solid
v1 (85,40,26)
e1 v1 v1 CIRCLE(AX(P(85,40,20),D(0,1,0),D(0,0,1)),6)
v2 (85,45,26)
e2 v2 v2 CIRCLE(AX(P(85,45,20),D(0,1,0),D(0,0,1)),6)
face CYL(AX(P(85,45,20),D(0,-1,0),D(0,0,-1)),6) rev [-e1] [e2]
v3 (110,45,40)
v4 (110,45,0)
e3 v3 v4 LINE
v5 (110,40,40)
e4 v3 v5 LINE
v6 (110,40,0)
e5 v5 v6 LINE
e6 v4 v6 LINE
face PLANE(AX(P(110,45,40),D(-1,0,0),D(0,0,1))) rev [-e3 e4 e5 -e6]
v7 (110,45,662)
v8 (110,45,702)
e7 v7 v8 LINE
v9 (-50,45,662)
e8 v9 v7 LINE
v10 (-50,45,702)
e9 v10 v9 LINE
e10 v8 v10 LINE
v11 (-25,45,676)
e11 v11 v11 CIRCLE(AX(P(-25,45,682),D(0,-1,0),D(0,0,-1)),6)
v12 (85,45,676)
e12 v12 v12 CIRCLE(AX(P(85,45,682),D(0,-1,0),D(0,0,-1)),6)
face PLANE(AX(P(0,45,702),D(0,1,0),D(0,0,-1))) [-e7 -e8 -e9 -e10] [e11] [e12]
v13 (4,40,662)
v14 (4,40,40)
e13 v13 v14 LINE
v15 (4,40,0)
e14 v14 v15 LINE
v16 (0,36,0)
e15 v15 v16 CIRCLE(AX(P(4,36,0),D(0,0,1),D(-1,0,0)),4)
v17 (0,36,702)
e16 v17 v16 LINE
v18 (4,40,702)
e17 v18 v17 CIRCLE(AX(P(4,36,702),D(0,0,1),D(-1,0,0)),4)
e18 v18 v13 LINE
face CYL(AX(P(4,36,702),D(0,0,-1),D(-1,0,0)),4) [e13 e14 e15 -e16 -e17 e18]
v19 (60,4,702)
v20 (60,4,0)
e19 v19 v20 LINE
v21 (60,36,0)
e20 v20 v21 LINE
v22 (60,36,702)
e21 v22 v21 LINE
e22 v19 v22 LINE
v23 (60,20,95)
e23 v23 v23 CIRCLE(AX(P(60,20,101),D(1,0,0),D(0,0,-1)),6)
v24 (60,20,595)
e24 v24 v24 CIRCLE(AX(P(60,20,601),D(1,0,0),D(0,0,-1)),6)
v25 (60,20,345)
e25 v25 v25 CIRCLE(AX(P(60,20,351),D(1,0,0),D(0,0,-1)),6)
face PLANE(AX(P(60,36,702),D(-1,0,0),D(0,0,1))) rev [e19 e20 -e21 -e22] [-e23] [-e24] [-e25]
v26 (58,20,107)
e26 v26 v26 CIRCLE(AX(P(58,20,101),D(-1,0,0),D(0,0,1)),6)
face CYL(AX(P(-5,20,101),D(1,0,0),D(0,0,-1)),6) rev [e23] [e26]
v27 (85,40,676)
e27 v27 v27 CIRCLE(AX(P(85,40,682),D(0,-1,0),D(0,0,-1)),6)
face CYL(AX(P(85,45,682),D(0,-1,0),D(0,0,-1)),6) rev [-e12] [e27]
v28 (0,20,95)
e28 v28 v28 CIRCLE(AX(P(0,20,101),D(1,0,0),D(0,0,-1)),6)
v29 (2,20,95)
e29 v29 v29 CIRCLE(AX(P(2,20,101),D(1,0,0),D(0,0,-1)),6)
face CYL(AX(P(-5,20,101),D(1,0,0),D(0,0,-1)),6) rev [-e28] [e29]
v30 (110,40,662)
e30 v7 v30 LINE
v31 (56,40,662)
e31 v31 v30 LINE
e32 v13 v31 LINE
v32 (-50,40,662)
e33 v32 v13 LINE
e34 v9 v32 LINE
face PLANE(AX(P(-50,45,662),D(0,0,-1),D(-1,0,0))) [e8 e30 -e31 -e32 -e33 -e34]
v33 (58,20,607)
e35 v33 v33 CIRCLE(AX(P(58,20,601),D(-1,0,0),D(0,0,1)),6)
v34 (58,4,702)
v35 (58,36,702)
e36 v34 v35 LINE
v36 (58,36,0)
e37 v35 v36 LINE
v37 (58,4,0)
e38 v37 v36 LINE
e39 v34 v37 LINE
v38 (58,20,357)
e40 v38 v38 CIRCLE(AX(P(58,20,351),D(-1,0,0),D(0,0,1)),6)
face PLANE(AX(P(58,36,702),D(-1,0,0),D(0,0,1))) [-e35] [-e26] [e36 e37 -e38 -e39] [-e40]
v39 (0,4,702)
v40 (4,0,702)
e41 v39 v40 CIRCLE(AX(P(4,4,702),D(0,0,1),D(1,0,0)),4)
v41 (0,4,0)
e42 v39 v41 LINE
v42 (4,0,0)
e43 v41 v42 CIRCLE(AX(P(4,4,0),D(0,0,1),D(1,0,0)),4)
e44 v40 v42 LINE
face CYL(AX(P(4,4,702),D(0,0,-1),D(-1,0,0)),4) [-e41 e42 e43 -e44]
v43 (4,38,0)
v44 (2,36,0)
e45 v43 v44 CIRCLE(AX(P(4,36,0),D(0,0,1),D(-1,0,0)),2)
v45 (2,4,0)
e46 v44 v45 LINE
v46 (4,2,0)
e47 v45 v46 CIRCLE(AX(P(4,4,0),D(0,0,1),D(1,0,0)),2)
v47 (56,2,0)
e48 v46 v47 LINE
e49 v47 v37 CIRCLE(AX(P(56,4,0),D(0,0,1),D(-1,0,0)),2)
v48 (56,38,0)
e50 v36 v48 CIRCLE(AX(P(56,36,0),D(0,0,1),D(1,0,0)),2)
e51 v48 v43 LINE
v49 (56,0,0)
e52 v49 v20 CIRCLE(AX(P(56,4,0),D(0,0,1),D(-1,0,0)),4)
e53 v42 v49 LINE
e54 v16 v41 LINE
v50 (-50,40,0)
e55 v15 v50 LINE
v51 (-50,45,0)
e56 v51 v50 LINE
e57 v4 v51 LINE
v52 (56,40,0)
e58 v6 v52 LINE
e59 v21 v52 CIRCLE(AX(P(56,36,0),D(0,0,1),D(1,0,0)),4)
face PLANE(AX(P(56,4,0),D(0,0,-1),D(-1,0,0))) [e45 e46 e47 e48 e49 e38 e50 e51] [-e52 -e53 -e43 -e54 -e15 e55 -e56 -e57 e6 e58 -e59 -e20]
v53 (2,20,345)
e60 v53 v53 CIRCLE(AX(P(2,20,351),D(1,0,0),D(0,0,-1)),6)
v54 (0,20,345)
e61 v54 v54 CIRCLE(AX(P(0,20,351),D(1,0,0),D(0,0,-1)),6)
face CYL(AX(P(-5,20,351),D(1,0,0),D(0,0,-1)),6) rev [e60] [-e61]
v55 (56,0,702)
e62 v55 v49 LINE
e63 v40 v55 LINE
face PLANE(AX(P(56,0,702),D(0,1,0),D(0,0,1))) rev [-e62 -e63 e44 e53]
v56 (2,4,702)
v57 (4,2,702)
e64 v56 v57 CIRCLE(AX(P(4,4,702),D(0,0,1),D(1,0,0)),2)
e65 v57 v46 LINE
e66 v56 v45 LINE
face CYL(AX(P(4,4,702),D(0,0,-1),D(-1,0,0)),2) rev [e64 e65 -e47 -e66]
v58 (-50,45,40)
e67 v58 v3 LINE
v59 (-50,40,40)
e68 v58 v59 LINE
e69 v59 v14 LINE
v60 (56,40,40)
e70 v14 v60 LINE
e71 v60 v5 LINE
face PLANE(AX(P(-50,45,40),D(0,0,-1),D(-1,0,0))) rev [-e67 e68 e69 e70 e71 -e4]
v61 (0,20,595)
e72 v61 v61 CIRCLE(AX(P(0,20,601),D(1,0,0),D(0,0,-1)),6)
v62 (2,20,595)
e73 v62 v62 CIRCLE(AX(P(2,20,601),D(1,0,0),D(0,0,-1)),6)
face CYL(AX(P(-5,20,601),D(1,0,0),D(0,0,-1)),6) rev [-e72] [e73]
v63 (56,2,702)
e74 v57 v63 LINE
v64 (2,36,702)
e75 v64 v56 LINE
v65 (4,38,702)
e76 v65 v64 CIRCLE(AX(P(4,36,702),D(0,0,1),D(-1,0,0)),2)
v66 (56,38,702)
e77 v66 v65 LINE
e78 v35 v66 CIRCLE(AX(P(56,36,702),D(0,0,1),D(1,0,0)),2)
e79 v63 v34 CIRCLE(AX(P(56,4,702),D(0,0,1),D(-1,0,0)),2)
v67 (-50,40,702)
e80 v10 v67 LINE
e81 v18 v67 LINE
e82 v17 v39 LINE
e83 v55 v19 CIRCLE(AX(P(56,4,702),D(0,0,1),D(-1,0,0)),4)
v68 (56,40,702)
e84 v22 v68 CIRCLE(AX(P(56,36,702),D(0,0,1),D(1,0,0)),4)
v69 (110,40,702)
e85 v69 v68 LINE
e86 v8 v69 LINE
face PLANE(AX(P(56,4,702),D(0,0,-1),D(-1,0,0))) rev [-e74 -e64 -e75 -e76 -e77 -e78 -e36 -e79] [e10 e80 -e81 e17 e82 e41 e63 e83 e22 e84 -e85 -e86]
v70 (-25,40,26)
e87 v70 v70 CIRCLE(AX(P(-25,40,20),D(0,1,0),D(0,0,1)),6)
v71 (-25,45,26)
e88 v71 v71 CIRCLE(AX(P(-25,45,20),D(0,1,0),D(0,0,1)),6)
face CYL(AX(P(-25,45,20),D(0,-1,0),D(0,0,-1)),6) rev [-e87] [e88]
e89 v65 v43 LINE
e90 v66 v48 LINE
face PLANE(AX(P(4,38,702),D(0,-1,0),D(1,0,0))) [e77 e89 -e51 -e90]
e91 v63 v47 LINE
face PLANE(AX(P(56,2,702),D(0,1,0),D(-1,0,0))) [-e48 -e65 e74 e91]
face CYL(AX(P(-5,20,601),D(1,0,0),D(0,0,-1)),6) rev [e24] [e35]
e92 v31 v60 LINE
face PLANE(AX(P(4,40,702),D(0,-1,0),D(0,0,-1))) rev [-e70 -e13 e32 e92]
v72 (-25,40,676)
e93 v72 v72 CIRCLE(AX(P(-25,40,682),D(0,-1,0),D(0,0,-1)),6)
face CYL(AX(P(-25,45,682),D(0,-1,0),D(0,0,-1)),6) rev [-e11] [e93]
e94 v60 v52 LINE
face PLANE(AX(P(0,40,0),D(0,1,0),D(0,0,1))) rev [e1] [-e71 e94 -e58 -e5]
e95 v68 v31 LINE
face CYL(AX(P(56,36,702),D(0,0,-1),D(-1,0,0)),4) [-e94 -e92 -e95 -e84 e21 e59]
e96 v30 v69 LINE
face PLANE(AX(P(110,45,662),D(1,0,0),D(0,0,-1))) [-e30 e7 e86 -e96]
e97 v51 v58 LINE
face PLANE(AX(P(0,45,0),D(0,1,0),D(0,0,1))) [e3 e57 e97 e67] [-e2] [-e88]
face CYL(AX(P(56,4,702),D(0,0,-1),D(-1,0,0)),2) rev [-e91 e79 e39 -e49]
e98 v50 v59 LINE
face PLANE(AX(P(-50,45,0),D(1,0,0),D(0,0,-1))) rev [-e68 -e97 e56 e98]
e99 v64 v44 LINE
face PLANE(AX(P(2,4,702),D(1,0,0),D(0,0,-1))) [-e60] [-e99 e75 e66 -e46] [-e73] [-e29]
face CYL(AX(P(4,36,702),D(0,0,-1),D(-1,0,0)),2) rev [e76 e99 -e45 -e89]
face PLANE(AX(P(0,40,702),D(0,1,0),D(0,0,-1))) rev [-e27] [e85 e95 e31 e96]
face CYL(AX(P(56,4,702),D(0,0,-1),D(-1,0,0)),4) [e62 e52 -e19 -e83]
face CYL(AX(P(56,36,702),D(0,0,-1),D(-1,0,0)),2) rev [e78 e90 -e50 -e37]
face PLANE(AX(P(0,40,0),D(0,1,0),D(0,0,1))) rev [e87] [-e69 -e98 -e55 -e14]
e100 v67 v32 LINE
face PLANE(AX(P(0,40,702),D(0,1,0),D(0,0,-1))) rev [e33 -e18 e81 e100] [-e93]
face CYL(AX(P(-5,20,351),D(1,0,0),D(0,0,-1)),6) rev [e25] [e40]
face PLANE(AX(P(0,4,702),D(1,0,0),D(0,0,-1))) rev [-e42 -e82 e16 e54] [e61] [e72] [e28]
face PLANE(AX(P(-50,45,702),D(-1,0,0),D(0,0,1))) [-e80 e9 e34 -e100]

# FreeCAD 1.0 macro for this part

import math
import FreeCAD as App
import Part
import Sketcher
Q = App.Units.Quantity


def add_polygon(sketch, points):
    """Adds a closed chain of lines whose ends are joined by coincident constraints."""
    first, n = sketch.GeometryCount, len(points)
    for a, b in zip(points, points[1:] + points[:1]):
        sketch.addGeometry(Part.LineSegment(App.Vector(*a, 0), App.Vector(*b, 0)), False)
    for i in range(n):
        sketch.addConstraint(Sketcher.Constraint("Coincident", first + i, 2, first + (i + 1) % n, 1))

doc = App.newDocument("Part")
params = doc.addObject("Spreadsheet::Sheet", "Params")
for row, (alias, value) in enumerate([
    ("sketch1_radius", "4 mm"),
    ("sketch1_radius2", "2 mm"),
    ("sketch1_width", "52 mm"),
    ("sketch1_height", "32 mm"),
    ("pad1_length", "702 mm"),
    ("sketch2_diameter", "12 mm"),
    ("sketch2_width", "160 mm"),
    ("sketch2_height", "40 mm"),
    ("pad2_length", "5 mm"),
    ("sketch3_diameter", "12 mm"),
    ("pocket1_length", "65 mm"),
], start=1):
    params.set(f"A{row}", alias)
    params.set(f"B{row}", "=" + value)
    params.setAlias(f"B{row}", alias)

body = doc.addObject("PartDesign::Body", "Body")

sketch1 = body.newObject("Sketcher::SketchObject", "Sketch")
sketch1.AttachmentSupport = (doc.getObject("XY_Plane"), [""])
sketch1.MapMode = "FlatFace"
sketch1.addGeometry([
    Part.LineSegment(App.Vector(0, 36, 0), App.Vector(0, 4, 0)),
    Part.ArcOfCircle(Part.Circle(App.Vector(4, 4, 0), App.Vector(0, 0, 1), 4), math.radians(180), math.radians(270)),
    Part.LineSegment(App.Vector(4, 0, 0), App.Vector(56, 0, 0)),
    Part.ArcOfCircle(Part.Circle(App.Vector(56, 4, 0), App.Vector(0, 0, 1), 4), math.radians(-90), math.radians(0)),
    Part.LineSegment(App.Vector(60, 4, 0), App.Vector(60, 36, 0)),
    Part.ArcOfCircle(Part.Circle(App.Vector(56, 36, 0), App.Vector(0, 0, 1), 4), math.radians(0), math.radians(90)),
    Part.LineSegment(App.Vector(56, 40, 0), App.Vector(4, 40, 0)),
    Part.ArcOfCircle(Part.Circle(App.Vector(4, 36, 0), App.Vector(0, 0, 1), 4), math.radians(90), math.radians(180)),
    Part.LineSegment(App.Vector(2, 4, 0), App.Vector(2, 36, 0)),
    Part.ArcOfCircle(Part.Circle(App.Vector(4, 36, 0), App.Vector(0, 0, 1), 2), math.radians(90), math.radians(180)),
    Part.LineSegment(App.Vector(4, 38, 0), App.Vector(56, 38, 0)),
    Part.ArcOfCircle(Part.Circle(App.Vector(56, 36, 0), App.Vector(0, 0, 1), 2), math.radians(0), math.radians(90)),
    Part.LineSegment(App.Vector(58, 36, 0), App.Vector(58, 4, 0)),
    Part.ArcOfCircle(Part.Circle(App.Vector(56, 4, 0), App.Vector(0, 0, 1), 2), math.radians(-90), math.radians(0)),
    Part.LineSegment(App.Vector(56, 2, 0), App.Vector(4, 2, 0)),
    Part.ArcOfCircle(Part.Circle(App.Vector(4, 4, 0), App.Vector(0, 0, 1), 2), math.radians(-180), math.radians(-90)),
], False)
sketch1.addConstraint([
    Sketcher.Constraint("Tangent", 0, 2, 1, 1),
    Sketcher.Constraint("Tangent", 1, 2, 2, 1),
    Sketcher.Constraint("Tangent", 2, 2, 3, 1),
    Sketcher.Constraint("Tangent", 3, 2, 4, 1),
    Sketcher.Constraint("Tangent", 4, 2, 5, 1),
    Sketcher.Constraint("Tangent", 5, 2, 6, 1),
    Sketcher.Constraint("Tangent", 6, 2, 7, 1),
    Sketcher.Constraint("Tangent", 7, 2, 0, 1),
    Sketcher.Constraint("Tangent", 8, 2, 9, 2),
    Sketcher.Constraint("Tangent", 9, 1, 10, 1),
    Sketcher.Constraint("Tangent", 10, 2, 11, 2),
    Sketcher.Constraint("Tangent", 11, 1, 12, 1),
    Sketcher.Constraint("Tangent", 12, 2, 13, 2),
    Sketcher.Constraint("Tangent", 13, 1, 14, 1),
    Sketcher.Constraint("Tangent", 14, 2, 15, 2),
    Sketcher.Constraint("Tangent", 15, 1, 8, 1),
    Sketcher.Constraint("Vertical", 0),
    Sketcher.Constraint("Horizontal", 2),
    Sketcher.Constraint("Vertical", 4),
    Sketcher.Constraint("Horizontal", 6),
    Sketcher.Constraint("Vertical", 8),
    Sketcher.Constraint("Horizontal", 10),
    Sketcher.Constraint("Vertical", 12),
    Sketcher.Constraint("Horizontal", 14),
    Sketcher.Constraint("Coincident", 9, 3, 7, 3),
    Sketcher.Constraint("Coincident", 11, 3, 5, 3),
    Sketcher.Constraint("Coincident", 13, 3, 3, 3),
    Sketcher.Constraint("Equal", 1, 3),
    Sketcher.Constraint("Equal", 3, 5),
    Sketcher.Constraint("Equal", 5, 7),
    Sketcher.Constraint("Equal", 13, 15),
    Sketcher.Constraint("PointOnObject", 0, 2, -2),
    Sketcher.Constraint("PointOnObject", 1, 2, -1),
    Sketcher.Constraint("Radius", 1, Q("4 mm")),
    Sketcher.Constraint("Radius", 9, Q("2 mm")),
    Sketcher.Constraint("DistanceX", 2, 1, 2, 2, Q("52 mm")),
    Sketcher.Constraint("DistanceY", 0, 2, 0, 1, Q("32 mm")),
])
sketch1.setExpression("Constraints[33]", "Params.sketch1_radius")
sketch1.setExpression("Constraints[34]", "Params.sketch1_radius2")
sketch1.setExpression("Constraints[35]", "Params.sketch1_width")
sketch1.setExpression("Constraints[36]", "Params.sketch1_height")
pad1 = body.newObject("PartDesign::Pad", "Pad")
pad1.Profile = sketch1
pad1.setExpression("Length", "Params.pad1_length")

sketch2 = body.newObject("Sketcher::SketchObject", "Sketch001")
sketch2.AttachmentSupport = (doc.getObject("XZ_Plane"), [""])
sketch2.MapMode = "FlatFace"
sketch2.AttachmentOffset = App.Placement(App.Vector(0, 0, -40), App.Rotation())
add_polygon(sketch2, [(-50, 0), (-50, 40), (110, 40), (110, 0)])
sketch2.addGeometry(Part.Circle(App.Vector(-25, 20, 0), App.Vector(0, 0, 1), 6), False)
sketch2.addGeometry(Part.Circle(App.Vector(85, 20, 0), App.Vector(0, 0, 1), 6), False)
sketch2.addConstraint([
    Sketcher.Constraint("Vertical", 0),
    Sketcher.Constraint("Horizontal", 1),
    Sketcher.Constraint("Vertical", 2),
    Sketcher.Constraint("Horizontal", 3),
    Sketcher.Constraint("Equal", 4, 5),
    Sketcher.Constraint("PointOnObject", 2, 2, -1),
    Sketcher.Constraint("Horizontal", 4, 3, 5, 3),
    Sketcher.Constraint("Diameter", 4, Q("12 mm")),
    Sketcher.Constraint("DistanceX", 1, 1, 1, 2, Q("160 mm")),
    Sketcher.Constraint("DistanceY", 0, 1, 0, 2, Q("40 mm")),
    Sketcher.Constraint("DistanceX", 4, 3, -1, 1, Q("25 mm")),
    Sketcher.Constraint("DistanceY", -1, 1, 4, 3, Q("20 mm")),
    Sketcher.Constraint("DistanceX", -1, 1, 5, 3, Q("85 mm")),
    Sketcher.Constraint("DistanceX", 0, 2, -1, 1, Q("50 mm")),
])
sketch2.setExpression("Constraints[11]", "Params.sketch2_diameter")
sketch2.setExpression("Constraints[12]", "Params.sketch2_width")
sketch2.setExpression("Constraints[13]", "Params.sketch2_height")
pad2 = body.newObject("PartDesign::Pad", "Pad001")
pad2.Profile = sketch2
pad2.setExpression("Length", "Params.pad2_length")
pad2.Reversed = True
doc.recompute()

datumplane = body.newObject("PartDesign::Plane", "DatumPlane")
datumplane.AttachmentSupport = (doc.getObject("XY_Plane"), [""])
datumplane.MapMode = "FlatFace"
datumplane.AttachmentOffset = App.Placement(App.Vector(0, 0, 351), App.Rotation())
mirrored = body.newObject("PartDesign::Mirrored", "Mirrored")
mirrored.Originals = [pad2]
mirrored.MirrorPlane = (datumplane, [""])
body.Tip = mirrored

sketch3 = body.newObject("Sketcher::SketchObject", "Sketch002")
sketch3.AttachmentSupport = (doc.getObject("YZ_Plane"), [""])
sketch3.MapMode = "FlatFace"
sketch3.AttachmentOffset = App.Placement(App.Vector(0, 0, 60), App.Rotation())
sketch3.addGeometry([
    Part.Circle(App.Vector(20, 101, 0), App.Vector(0, 0, 1), 6),
    Part.Circle(App.Vector(20, 351, 0), App.Vector(0, 0, 1), 6),
    Part.Circle(App.Vector(20, 601, 0), App.Vector(0, 0, 1), 6),
], False)
sketch3.addConstraint([
    Sketcher.Constraint("Equal", 0, 1),
    Sketcher.Constraint("Equal", 1, 2),
    Sketcher.Constraint("Vertical", 0, 3, 1, 3),
    Sketcher.Constraint("Vertical", 1, 3, 2, 3),
    Sketcher.Constraint("Diameter", 0, Q("12 mm")),
    Sketcher.Constraint("DistanceX", -1, 1, 0, 3, Q("20 mm")),
    Sketcher.Constraint("DistanceY", -1, 1, 0, 3, Q("101 mm")),
    Sketcher.Constraint("DistanceY", -1, 1, 1, 3, Q("351 mm")),
    Sketcher.Constraint("DistanceY", -1, 1, 2, 3, Q("601 mm")),
])
sketch3.setExpression("Constraints[4]", "Params.sketch3_diameter")
pocket1 = body.newObject("PartDesign::Pocket", "Pocket")
pocket1.Profile = sketch3
pocket1.setExpression("Length", "Params.pocket1_length")

doc.recompute()
